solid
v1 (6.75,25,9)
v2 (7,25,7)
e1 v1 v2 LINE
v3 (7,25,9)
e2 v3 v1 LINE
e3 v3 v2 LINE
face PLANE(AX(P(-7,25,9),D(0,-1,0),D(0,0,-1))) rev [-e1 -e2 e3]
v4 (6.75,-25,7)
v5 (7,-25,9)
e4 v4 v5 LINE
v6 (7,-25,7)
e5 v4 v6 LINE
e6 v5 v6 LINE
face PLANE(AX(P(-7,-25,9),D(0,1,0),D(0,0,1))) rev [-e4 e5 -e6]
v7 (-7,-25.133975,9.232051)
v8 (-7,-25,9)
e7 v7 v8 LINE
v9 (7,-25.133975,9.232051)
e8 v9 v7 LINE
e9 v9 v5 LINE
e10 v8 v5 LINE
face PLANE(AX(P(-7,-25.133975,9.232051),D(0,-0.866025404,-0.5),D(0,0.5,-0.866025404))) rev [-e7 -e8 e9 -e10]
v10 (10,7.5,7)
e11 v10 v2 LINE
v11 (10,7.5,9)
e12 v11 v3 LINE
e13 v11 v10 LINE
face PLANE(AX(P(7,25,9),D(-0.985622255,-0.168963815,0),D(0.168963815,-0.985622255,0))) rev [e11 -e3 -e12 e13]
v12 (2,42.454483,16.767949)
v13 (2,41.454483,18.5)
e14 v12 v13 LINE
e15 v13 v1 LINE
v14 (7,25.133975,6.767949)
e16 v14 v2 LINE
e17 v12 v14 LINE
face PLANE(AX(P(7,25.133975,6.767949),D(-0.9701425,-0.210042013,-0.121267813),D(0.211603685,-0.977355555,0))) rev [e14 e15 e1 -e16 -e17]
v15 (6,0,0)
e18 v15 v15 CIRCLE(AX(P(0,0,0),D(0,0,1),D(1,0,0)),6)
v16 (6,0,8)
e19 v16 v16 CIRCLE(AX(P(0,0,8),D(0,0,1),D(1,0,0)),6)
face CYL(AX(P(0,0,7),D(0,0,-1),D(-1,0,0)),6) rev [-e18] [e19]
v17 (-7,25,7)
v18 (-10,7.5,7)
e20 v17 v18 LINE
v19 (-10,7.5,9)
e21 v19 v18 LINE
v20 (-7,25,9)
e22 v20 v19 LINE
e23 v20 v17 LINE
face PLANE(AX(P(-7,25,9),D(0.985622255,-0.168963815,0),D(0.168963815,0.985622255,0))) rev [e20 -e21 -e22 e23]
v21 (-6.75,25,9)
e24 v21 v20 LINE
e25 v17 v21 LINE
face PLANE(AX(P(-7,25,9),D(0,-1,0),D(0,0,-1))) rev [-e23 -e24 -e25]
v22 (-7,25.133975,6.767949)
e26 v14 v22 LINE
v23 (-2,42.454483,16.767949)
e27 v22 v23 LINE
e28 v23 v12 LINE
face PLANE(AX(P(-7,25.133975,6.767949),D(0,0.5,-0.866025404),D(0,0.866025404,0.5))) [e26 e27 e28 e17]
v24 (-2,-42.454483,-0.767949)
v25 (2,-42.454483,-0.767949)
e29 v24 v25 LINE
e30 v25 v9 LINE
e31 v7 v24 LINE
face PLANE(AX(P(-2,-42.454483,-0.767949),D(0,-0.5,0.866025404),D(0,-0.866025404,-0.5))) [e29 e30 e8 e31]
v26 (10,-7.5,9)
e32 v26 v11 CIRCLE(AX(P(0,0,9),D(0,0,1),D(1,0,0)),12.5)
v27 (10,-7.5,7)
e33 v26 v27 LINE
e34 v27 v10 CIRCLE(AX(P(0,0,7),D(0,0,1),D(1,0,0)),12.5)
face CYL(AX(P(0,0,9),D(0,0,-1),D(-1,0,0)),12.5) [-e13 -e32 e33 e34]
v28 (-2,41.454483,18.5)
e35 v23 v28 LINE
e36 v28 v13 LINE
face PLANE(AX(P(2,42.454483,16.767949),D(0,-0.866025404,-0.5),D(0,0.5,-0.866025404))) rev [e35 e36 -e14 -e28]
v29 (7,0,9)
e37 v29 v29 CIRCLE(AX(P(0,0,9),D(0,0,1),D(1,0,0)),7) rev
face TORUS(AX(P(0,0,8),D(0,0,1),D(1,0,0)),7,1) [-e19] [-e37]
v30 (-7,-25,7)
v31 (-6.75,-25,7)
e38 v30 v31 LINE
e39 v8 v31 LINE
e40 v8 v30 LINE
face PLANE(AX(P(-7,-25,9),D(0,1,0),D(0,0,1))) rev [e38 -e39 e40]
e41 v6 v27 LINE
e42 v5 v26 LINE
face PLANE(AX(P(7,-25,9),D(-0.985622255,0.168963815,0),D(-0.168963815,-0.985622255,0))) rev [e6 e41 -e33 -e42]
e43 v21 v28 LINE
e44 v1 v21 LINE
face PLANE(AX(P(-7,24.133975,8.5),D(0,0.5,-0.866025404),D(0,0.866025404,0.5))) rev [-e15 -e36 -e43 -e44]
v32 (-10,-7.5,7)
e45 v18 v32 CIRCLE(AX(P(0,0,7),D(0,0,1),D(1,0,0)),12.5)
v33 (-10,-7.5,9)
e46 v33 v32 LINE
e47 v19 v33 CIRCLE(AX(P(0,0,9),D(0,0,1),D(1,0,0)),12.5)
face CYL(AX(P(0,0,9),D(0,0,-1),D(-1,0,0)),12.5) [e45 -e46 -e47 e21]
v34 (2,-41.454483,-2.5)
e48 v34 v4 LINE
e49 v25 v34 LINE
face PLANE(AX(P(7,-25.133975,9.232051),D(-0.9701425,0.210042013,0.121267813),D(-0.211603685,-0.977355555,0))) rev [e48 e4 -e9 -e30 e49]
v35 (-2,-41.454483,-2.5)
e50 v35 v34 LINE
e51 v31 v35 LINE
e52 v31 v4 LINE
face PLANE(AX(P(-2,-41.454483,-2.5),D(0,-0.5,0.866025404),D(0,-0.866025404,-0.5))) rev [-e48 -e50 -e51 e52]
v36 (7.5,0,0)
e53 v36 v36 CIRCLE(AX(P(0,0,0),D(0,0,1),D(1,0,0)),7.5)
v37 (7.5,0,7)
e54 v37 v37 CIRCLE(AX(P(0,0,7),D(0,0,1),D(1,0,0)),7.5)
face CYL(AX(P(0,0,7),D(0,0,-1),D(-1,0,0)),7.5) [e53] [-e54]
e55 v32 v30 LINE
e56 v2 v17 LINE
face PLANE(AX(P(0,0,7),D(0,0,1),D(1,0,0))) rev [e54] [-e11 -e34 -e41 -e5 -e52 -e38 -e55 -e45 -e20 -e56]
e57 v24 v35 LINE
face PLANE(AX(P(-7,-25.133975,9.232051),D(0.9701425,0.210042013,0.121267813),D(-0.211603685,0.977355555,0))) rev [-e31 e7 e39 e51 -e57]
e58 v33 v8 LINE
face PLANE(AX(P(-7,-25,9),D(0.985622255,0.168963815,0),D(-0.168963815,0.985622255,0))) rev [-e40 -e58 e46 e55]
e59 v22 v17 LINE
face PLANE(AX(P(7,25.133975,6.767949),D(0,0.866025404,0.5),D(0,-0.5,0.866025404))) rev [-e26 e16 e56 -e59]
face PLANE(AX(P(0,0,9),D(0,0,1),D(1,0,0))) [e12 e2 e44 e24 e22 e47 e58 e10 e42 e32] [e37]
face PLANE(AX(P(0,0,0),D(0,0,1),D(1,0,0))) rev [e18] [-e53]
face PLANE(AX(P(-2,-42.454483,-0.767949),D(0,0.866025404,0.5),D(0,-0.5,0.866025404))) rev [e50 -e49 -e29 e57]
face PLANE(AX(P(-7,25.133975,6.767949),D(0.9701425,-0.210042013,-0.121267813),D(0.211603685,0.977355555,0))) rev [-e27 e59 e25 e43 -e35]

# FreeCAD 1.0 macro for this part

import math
import FreeCAD as App
import Part
import Sketcher
from FreeCAD import Vector
Q = App.Units.Quantity


def edges_at(feature, points):
    """Names of the edges that pass closest to the given points."""
    edges = feature.Shape.Edges
    near = lambda p: min(range(len(edges)), key=lambda i: edges[i].distToShape(Part.Vertex(*p))[0])
    return sorted({f"Edge{near(p) + 1}" for p in points})

doc = App.newDocument("Part")
body = doc.addObject("PartDesign::Body", "Body")

# Sketch on XY plane
sketch1 = doc.addObject("Sketcher::SketchObject", "Sketch")
body.addObject(sketch1)
sketch1.AttachmentSupport = (doc.XY_Plane, [""])
sketch1.MapMode = "FlatFace"
sketch1.addGeometry([
    Part.Circle(Vector(0, 0, 0), Vector(0, 0, 1), 8),
    Part.Circle(Vector(0, 0, 0), Vector(0, 0, 1), 6),
], False)
sketch1.addConstraint([
    Sketcher.Constraint("Coincident", 0, 3, -1, 1),
    Sketcher.Constraint("Coincident", 1, 3, -1, 1),
    Sketcher.Constraint("Diameter", 0, Q("15 mm")),
    Sketcher.Constraint("Diameter", 1, Q("12 mm")),
])
pad1 = doc.addObject("PartDesign::Pad", "Pad")
body.addObject(pad1)
pad1.Profile = sketch1
pad1.Length = 7

# Sketch on XY plane
sketch2 = doc.addObject("Sketcher::SketchObject", "Sketch001")
body.addObject(sketch2)
sketch2.AttachmentSupport = (doc.XY_Plane, [""])
sketch2.MapMode = "FlatFace"
sketch2.AttachmentOffset = App.Placement(Vector(0, 0, 7), App.Rotation())
sketch2.addGeometry([
    Part.LineSegment(Vector(7, 25, 0), Vector(-7, 25, 0)),  # 0
    Part.LineSegment(Vector(-7, 25, 0), Vector(-10, 8, 0)),  # 1
    Part.ArcOfCircle(Part.Circle(Vector(0, 0, 0), Vector(0, 0, 1), 12), math.radians(143), math.radians(217)),  # 2
    Part.LineSegment(Vector(-10, -8, 0), Vector(-7, -25, 0)),  # 3
    Part.LineSegment(Vector(-7, -25, 0), Vector(7, -25, 0)),  # 4
    Part.LineSegment(Vector(7, -25, 0), Vector(10, -8, 0)),  # 5
    Part.ArcOfCircle(Part.Circle(Vector(0, 0, 0), Vector(0, 0, 1), 12), math.radians(-37), math.radians(37)),  # 6
    Part.LineSegment(Vector(10, 8, 0), Vector(7, 25, 0)),  # 7
    Part.Circle(Vector(0, 0, 0), Vector(0, 0, 1), 6),  # 8
], False)
sketch2.addConstraint([
    Sketcher.Constraint("Coincident", 0, 2, 1, 1),
    Sketcher.Constraint("Coincident", 1, 2, 2, 1),
    Sketcher.Constraint("Coincident", 2, 2, 3, 1),
    Sketcher.Constraint("Coincident", 3, 2, 4, 1),
    Sketcher.Constraint("Coincident", 4, 2, 5, 1),
    Sketcher.Constraint("Coincident", 5, 2, 6, 1),
    Sketcher.Constraint("Coincident", 6, 2, 7, 1),
    Sketcher.Constraint("Coincident", 7, 2, 0, 1),
    Sketcher.Constraint("Horizontal", 0),
    Sketcher.Constraint("Horizontal", 4),
    Sketcher.Constraint("Coincident", 2, 3, -1, 1),
    Sketcher.Constraint("Coincident", 6, 3, -1, 1),
    Sketcher.Constraint("Coincident", 8, 3, -1, 1),
    Sketcher.Constraint("Equal", 2, 6),
    Sketcher.Constraint("Symmetric", 0, 2, 4, 2, -1, 1),
    Sketcher.Constraint("Parallel", 1, 5),
    Sketcher.Constraint("Parallel", 3, 7),
    Sketcher.Constraint("Horizontal", 2, 2, 5, 2),
    Sketcher.Constraint("Horizontal", 1, 2, 6, 2),
    Sketcher.Constraint("Vertical", 0, 2, 3, 2),
    Sketcher.Constraint("Diameter", 8, Q("12 mm")),
    Sketcher.Constraint("Radius", 2, Q("12.5 mm")),
    Sketcher.Constraint("DistanceX", 0, 2, 0, 1, Q("14 mm")),
    Sketcher.Constraint("DistanceY", -1, 1, 0, 2, Q("25 mm")),
    Sketcher.Constraint("DistanceX", 1, 2, -1, 1, Q("10 mm")),
])
pad2 = doc.addObject("PartDesign::Pad", "Pad001")
body.addObject(pad2)
pad2.Profile = sketch2
pad2.Length = 2
doc.recompute()

fillet = doc.addObject("PartDesign::Fillet", "Fillet")
body.addObject(fillet)
fillet.Base = (pad2, edges_at(pad2, [(-6, 0, 9)]))
fillet.Radius = 1

# Sketch on an angled plane
sketch3 = doc.addObject("Sketcher::SketchObject", "Sketch002")
body.addObject(sketch3)
sketch3.Placement = App.Placement(Vector(0, 2.352886, -4.075318), App.Rotation(Vector(-1, 0, 0), Vector(0, 0.866025404, 0.5), Vector(0, 0.5, -0.866025404), "ZXY"))
sketch3.addGeometry([
    Part.LineSegment(Vector(-2, 45.2, 0), Vector(-7, 25.2, 0)),
    Part.LineSegment(Vector(-7, 25.2, 0), Vector(7, 25.2, 0)),
    Part.LineSegment(Vector(7, 25.2, 0), Vector(2, 45.2, 0)),
    Part.LineSegment(Vector(2, 45.2, 0), Vector(-2, 45.2, 0)),
], False)
sketch3.addConstraint([
    Sketcher.Constraint("Coincident", 0, 2, 1, 1),
    Sketcher.Constraint("Coincident", 1, 2, 2, 1),
    Sketcher.Constraint("Coincident", 2, 2, 3, 1),
    Sketcher.Constraint("Coincident", 3, 2, 0, 1),
    Sketcher.Constraint("Horizontal", 1),
    Sketcher.Constraint("Horizontal", 3),
    Sketcher.Constraint("Equal", 0, 2),
    Sketcher.Constraint("DistanceX", 1, 1, 1, 2, Q("14 mm")),
    Sketcher.Constraint("DistanceX", 3, 2, 3, 1, Q("4 mm")),
    Sketcher.Constraint("DistanceX", 0, 2, -1, 1, Q("7 mm")),
    Sketcher.Constraint("DistanceY", 1, 2, 2, 2, Q("20 mm")),
    Sketcher.Constraint("DistanceY", -1, 1, 0, 2, Q("25.150635 mm")),
])
pad3 = doc.addObject("PartDesign::Pad", "Pad002")
body.addObject(pad3)
pad3.Profile = sketch3
pad3.Length = 2

# Sketch on an angled plane
sketch4 = doc.addObject("Sketcher::SketchObject", "Sketch003")
body.addObject(sketch4)
sketch4.Placement = App.Placement(Vector(0, -9.281089, 16.075318), App.Rotation(Vector(1, 0, 0), Vector(0, 0.866025404, 0.5), Vector(0, -0.5, 0.866025404), "ZXY"))
sketch4.addGeometry([
    Part.LineSegment(Vector(7, -17.2, 0), Vector(-7, -17.2, 0)),
    Part.LineSegment(Vector(-7, -17.2, 0), Vector(-2, -37.2, 0)),
    Part.LineSegment(Vector(-2, -37.2, 0), Vector(2, -37.2, 0)),
    Part.LineSegment(Vector(2, -37.2, 0), Vector(7, -17.2, 0)),
], False)
sketch4.addConstraint([
    Sketcher.Constraint("Coincident", 0, 2, 1, 1),
    Sketcher.Constraint("Coincident", 1, 2, 2, 1),
    Sketcher.Constraint("Coincident", 2, 2, 3, 1),
    Sketcher.Constraint("Coincident", 3, 2, 0, 1),
    Sketcher.Constraint("Horizontal", 0),
    Sketcher.Constraint("Horizontal", 2),
    Sketcher.Constraint("Equal", 1, 3),
    Sketcher.Constraint("DistanceX", 0, 2, 0, 1, Q("14 mm")),
    Sketcher.Constraint("DistanceX", 2, 1, 2, 2, Q("4 mm")),
    Sketcher.Constraint("DistanceX", 0, 2, -1, 1, Q("7 mm")),
    Sketcher.Constraint("DistanceY", 1, 2, 0, 2, Q("20 mm")),
    Sketcher.Constraint("DistanceY", 0, 2, -1, 1, Q("17.150635 mm")),
])
pad4 = doc.addObject("PartDesign::Pad", "Pad003")
body.addObject(pad4)
pad4.Profile = sketch4
pad4.Length = 2

doc.recompute()
